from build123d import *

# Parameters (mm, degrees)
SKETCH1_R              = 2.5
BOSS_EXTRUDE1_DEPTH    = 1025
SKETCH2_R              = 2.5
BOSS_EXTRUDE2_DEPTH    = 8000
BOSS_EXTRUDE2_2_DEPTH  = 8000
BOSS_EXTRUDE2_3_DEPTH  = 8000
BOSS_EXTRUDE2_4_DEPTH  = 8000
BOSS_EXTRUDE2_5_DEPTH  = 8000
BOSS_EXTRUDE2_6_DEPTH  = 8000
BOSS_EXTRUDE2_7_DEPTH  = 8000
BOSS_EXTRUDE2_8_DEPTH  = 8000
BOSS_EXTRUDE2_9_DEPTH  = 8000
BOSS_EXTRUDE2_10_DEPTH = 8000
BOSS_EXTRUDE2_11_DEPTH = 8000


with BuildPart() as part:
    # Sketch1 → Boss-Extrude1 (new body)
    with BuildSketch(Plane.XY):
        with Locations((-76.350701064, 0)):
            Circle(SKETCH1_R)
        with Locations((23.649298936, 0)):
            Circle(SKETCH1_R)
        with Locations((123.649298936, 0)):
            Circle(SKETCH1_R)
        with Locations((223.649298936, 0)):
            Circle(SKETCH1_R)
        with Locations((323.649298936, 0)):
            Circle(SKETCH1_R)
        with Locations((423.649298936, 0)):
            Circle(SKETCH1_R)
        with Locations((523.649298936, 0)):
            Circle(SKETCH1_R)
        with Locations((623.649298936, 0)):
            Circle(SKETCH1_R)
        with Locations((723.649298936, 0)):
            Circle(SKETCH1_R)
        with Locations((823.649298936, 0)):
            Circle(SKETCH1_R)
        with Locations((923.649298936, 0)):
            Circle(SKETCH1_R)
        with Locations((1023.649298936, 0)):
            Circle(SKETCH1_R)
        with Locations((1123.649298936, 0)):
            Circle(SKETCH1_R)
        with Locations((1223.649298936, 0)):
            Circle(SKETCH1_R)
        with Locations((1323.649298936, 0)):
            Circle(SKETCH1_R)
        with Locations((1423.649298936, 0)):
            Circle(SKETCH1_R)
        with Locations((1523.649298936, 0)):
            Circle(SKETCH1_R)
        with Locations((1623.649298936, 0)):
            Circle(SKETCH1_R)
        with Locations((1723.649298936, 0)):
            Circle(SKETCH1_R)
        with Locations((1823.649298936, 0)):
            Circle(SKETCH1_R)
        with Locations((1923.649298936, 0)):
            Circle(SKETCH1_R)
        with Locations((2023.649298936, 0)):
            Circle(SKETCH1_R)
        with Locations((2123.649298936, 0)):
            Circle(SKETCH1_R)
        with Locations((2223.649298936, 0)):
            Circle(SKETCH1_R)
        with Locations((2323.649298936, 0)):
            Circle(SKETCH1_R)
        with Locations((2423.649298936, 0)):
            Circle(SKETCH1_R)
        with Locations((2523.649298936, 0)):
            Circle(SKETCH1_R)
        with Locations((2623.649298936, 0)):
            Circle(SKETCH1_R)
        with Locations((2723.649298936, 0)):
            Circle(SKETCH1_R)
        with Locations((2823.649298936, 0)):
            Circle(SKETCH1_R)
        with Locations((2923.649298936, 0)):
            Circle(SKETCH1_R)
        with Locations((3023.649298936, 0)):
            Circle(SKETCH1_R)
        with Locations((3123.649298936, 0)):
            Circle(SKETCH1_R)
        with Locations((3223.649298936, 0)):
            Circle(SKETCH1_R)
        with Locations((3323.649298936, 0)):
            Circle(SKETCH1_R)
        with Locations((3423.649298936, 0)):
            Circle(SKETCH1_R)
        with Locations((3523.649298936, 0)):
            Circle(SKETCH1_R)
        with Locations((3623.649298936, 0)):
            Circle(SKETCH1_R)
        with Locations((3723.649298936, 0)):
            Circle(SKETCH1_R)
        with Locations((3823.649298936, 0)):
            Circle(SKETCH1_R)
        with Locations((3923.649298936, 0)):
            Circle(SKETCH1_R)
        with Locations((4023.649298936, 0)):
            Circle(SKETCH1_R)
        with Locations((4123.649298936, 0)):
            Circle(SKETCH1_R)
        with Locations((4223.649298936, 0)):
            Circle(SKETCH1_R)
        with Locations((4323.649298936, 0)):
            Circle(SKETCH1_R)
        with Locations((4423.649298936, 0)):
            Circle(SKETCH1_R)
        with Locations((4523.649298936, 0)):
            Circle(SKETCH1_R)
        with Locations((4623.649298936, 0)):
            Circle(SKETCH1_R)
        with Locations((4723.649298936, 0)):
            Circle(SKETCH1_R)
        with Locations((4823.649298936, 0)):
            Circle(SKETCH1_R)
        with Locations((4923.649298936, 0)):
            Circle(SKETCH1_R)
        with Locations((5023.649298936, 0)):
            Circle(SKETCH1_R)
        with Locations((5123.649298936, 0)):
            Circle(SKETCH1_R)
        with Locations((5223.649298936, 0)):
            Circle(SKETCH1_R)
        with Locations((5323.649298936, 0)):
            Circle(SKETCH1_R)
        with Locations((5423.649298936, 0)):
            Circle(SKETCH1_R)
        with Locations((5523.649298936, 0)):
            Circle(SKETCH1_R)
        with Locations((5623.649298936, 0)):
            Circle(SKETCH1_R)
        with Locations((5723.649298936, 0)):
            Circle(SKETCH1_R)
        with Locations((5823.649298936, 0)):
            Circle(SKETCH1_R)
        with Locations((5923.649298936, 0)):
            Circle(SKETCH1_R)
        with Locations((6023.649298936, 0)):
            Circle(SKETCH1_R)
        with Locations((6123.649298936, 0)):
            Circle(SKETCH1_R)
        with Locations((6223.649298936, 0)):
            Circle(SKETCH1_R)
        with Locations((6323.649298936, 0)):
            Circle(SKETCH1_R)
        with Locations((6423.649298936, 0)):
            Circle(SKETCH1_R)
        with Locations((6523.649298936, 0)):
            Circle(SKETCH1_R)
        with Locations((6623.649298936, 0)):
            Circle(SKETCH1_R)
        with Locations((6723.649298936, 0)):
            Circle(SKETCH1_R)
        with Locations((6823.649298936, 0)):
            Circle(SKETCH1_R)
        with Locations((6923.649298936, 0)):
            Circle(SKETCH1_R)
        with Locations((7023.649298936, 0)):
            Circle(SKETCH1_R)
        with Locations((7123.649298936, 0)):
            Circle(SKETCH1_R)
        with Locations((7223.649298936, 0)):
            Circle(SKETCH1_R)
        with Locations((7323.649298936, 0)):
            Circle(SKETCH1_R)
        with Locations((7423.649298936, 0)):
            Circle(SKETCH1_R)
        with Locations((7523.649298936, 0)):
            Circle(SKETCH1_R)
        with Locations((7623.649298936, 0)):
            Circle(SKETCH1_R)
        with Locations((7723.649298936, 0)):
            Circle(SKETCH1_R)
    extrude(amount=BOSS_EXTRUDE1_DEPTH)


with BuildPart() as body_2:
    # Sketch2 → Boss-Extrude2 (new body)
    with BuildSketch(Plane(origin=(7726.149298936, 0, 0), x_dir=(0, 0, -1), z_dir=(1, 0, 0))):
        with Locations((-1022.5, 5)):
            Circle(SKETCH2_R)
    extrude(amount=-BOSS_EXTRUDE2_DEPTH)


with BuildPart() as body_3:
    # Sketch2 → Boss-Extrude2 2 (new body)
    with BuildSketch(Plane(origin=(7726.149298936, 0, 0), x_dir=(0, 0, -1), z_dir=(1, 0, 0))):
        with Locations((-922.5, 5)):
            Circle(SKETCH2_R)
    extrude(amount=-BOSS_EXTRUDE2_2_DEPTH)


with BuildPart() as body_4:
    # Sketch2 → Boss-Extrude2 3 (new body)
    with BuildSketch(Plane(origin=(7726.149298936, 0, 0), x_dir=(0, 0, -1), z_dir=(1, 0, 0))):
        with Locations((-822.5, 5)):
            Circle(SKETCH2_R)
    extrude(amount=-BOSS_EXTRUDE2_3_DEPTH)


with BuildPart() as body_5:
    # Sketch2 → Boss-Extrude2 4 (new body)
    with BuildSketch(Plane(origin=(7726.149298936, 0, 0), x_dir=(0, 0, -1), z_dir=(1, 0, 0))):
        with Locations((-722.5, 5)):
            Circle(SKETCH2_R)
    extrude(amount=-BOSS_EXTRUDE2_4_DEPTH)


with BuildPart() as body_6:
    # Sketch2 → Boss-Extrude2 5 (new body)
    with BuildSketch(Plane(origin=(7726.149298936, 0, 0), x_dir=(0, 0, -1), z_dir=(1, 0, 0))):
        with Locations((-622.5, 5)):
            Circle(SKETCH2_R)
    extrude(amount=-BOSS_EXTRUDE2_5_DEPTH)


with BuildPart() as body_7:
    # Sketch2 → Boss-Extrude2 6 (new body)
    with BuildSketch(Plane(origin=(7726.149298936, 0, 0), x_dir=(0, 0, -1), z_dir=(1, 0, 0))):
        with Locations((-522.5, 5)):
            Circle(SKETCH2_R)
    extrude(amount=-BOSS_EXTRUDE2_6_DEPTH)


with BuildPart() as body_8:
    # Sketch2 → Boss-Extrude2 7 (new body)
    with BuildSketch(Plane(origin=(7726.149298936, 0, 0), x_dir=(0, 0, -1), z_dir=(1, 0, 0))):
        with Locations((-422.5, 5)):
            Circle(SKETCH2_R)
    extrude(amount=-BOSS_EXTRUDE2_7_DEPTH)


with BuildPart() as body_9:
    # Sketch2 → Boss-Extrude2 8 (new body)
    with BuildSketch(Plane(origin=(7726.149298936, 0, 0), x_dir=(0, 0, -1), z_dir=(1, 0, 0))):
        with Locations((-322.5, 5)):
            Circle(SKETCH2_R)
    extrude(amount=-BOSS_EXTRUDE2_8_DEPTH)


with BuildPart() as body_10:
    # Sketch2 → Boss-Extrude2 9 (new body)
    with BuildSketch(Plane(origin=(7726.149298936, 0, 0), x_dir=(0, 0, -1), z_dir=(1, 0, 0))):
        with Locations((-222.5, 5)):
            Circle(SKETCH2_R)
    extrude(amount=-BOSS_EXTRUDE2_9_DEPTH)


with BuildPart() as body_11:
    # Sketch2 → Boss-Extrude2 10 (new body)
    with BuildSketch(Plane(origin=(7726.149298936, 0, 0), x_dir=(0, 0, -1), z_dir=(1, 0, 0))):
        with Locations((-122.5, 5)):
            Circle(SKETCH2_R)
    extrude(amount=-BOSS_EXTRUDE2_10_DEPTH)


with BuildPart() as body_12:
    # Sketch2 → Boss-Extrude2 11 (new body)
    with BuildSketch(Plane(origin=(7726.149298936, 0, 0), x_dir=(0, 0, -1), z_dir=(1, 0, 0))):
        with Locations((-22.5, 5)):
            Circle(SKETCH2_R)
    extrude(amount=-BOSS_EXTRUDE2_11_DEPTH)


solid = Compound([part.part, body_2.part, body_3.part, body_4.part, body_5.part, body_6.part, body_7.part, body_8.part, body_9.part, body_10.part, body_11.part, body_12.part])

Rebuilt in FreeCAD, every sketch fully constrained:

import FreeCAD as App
import Part
import Sketcher

V = App.Vector

doc = App.newDocument("Part")
body = doc.addObject("PartDesign::Body", "Body")
body.AllowCompound = True

# Sketch on XY plane
sketch1 = doc.addObject("Sketcher::SketchObject", "Sketch")
body.addObject(sketch1)
sketch1.AttachmentSupport = (doc.XY_Plane, [""])
sketch1.MapMode = "FlatFace"
sketch1.addGeometry([
    Part.Circle(V(-76.350701, 0, 0), V(0, 0, 1), 2.5),  # 0
    Part.Circle(V(23.649299, 0, 0), V(0, 0, 1), 2.5),  # 1
    Part.Circle(V(123.649299, 0, 0), V(0, 0, 1), 2.5),  # 2
    Part.Circle(V(223.649299, 0, 0), V(0, 0, 1), 2.5),  # 3
    Part.Circle(V(323.649299, 0, 0), V(0, 0, 1), 2.5),  # 4
    Part.Circle(V(423.649299, 0, 0), V(0, 0, 1), 2.5),  # 5
    Part.Circle(V(523.649299, 0, 0), V(0, 0, 1), 2.5),  # 6
    Part.Circle(V(623.649299, 0, 0), V(0, 0, 1), 2.5),  # 7
    Part.Circle(V(723.649299, 0, 0), V(0, 0, 1), 2.5),  # 8
    Part.Circle(V(823.649299, 0, 0), V(0, 0, 1), 2.5),  # 9
    Part.Circle(V(923.649299, 0, 0), V(0, 0, 1), 2.5),  # 10
    Part.Circle(V(1023.649299, 0, 0), V(0, 0, 1), 2.5),  # 11
    Part.Circle(V(1123.649299, 0, 0), V(0, 0, 1), 2.5),  # 12
    Part.Circle(V(1223.649299, 0, 0), V(0, 0, 1), 2.5),  # 13
    Part.Circle(V(1323.649299, 0, 0), V(0, 0, 1), 2.5),  # 14
    Part.Circle(V(1423.649299, 0, 0), V(0, 0, 1), 2.5),  # 15
    Part.Circle(V(1523.649299, 0, 0), V(0, 0, 1), 2.5),  # 16
    Part.Circle(V(1623.649299, 0, 0), V(0, 0, 1), 2.5),  # 17
    Part.Circle(V(1723.649299, 0, 0), V(0, 0, 1), 2.5),  # 18
    Part.Circle(V(1823.649299, 0, 0), V(0, 0, 1), 2.5),  # 19
    Part.Circle(V(1923.649299, 0, 0), V(0, 0, 1), 2.5),  # 20
    Part.Circle(V(2023.649299, 0, 0), V(0, 0, 1), 2.5),  # 21
    Part.Circle(V(2123.649299, 0, 0), V(0, 0, 1), 2.5),  # 22
    Part.Circle(V(2223.649299, 0, 0), V(0, 0, 1), 2.5),  # 23
    Part.Circle(V(2323.649299, 0, 0), V(0, 0, 1), 2.5),  # 24
    Part.Circle(V(2423.649299, 0, 0), V(0, 0, 1), 2.5),  # 25
    Part.Circle(V(2523.649299, 0, 0), V(0, 0, 1), 2.5),  # 26
    Part.Circle(V(2623.649299, 0, 0), V(0, 0, 1), 2.5),  # 27
    Part.Circle(V(2723.649299, 0, 0), V(0, 0, 1), 2.5),  # 28
    Part.Circle(V(2823.649299, 0, 0), V(0, 0, 1), 2.5),  # 29
    Part.Circle(V(2923.649299, 0, 0), V(0, 0, 1), 2.5),  # 30
    Part.Circle(V(3023.649299, 0, 0), V(0, 0, 1), 2.5),  # 31
    Part.Circle(V(3123.649299, 0, 0), V(0, 0, 1), 2.5),  # 32
    Part.Circle(V(3223.649299, 0, 0), V(0, 0, 1), 2.5),  # 33
    Part.Circle(V(3323.649299, 0, 0), V(0, 0, 1), 2.5),  # 34
    Part.Circle(V(3423.649299, 0, 0), V(0, 0, 1), 2.5),  # 35
    Part.Circle(V(3523.649299, 0, 0), V(0, 0, 1), 2.5),  # 36
    Part.Circle(V(3623.649299, 0, 0), V(0, 0, 1), 2.5),  # 37
    Part.Circle(V(3723.649299, 0, 0), V(0, 0, 1), 2.5),  # 38
    Part.Circle(V(3823.649299, 0, 0), V(0, 0, 1), 2.5),  # 39
    Part.Circle(V(3923.649299, 0, 0), V(0, 0, 1), 2.5),  # 40
    Part.Circle(V(4023.649299, 0, 0), V(0, 0, 1), 2.5),  # 41
    Part.Circle(V(4123.649299, 0, 0), V(0, 0, 1), 2.5),  # 42
    Part.Circle(V(4223.649299, 0, 0), V(0, 0, 1), 2.5),  # 43
    Part.Circle(V(4323.649299, 0, 0), V(0, 0, 1), 2.5),  # 44
    Part.Circle(V(4423.649299, 0, 0), V(0, 0, 1), 2.5),  # 45
    Part.Circle(V(4523.649299, 0, 0), V(0, 0, 1), 2.5),  # 46
    Part.Circle(V(4623.649299, 0, 0), V(0, 0, 1), 2.5),  # 47
    Part.Circle(V(4723.649299, 0, 0), V(0, 0, 1), 2.5),  # 48
    Part.Circle(V(4823.649299, 0, 0), V(0, 0, 1), 2.5),  # 49
    Part.Circle(V(4923.649299, 0, 0), V(0, 0, 1), 2.5),  # 50
    Part.Circle(V(5023.649299, 0, 0), V(0, 0, 1), 2.5),  # 51
    Part.Circle(V(5123.649299, 0, 0), V(0, 0, 1), 2.5),  # 52
    Part.Circle(V(5223.649299, 0, 0), V(0, 0, 1), 2.5),  # 53
    Part.Circle(V(5323.649299, 0, 0), V(0, 0, 1), 2.5),  # 54
    Part.Circle(V(5423.649299, 0, 0), V(0, 0, 1), 2.5),  # 55
    Part.Circle(V(5523.649299, 0, 0), V(0, 0, 1), 2.5),  # 56
    Part.Circle(V(5623.649299, 0, 0), V(0, 0, 1), 2.5),  # 57
    Part.Circle(V(5723.649299, 0, 0), V(0, 0, 1), 2.5),  # 58
    Part.Circle(V(5823.649299, 0, 0), V(0, 0, 1), 2.5),  # 59
    Part.Circle(V(5923.649299, 0, 0), V(0, 0, 1), 2.5),  # 60
    Part.Circle(V(6023.649299, 0, 0), V(0, 0, 1), 2.5),  # 61
    Part.Circle(V(6123.649299, 0, 0), V(0, 0, 1), 2.5),  # 62
    Part.Circle(V(6223.649299, 0, 0), V(0, 0, 1), 2.5),  # 63
    Part.Circle(V(6323.649299, 0, 0), V(0, 0, 1), 2.5),  # 64
    Part.Circle(V(6423.649299, 0, 0), V(0, 0, 1), 2.5),  # 65
    Part.Circle(V(6523.649299, 0, 0), V(0, 0, 1), 2.5),  # 66
    Part.Circle(V(6623.649299, 0, 0), V(0, 0, 1), 2.5),  # 67
    Part.Circle(V(6723.649299, 0, 0), V(0, 0, 1), 2.5),  # 68
    Part.Circle(V(6823.649299, 0, 0), V(0, 0, 1), 2.5),  # 69
    Part.Circle(V(6923.649299, 0, 0), V(0, 0, 1), 2.5),  # 70
    Part.Circle(V(7023.649299, 0, 0), V(0, 0, 1), 2.5),  # 71
    Part.Circle(V(7123.649299, 0, 0), V(0, 0, 1), 2.5),  # 72
    Part.Circle(V(7223.649299, 0, 0), V(0, 0, 1), 2.5),  # 73
    Part.Circle(V(7323.649299, 0, 0), V(0, 0, 1), 2.5),  # 74
    Part.Circle(V(7423.649299, 0, 0), V(0, 0, 1), 2.5),  # 75
    Part.Circle(V(7523.649299, 0, 0), V(0, 0, 1), 2.5),  # 76
    Part.Circle(V(7623.649299, 0, 0), V(0, 0, 1), 2.5),  # 77
    Part.Circle(V(7723.649299, 0, 0), V(0, 0, 1), 2.5),  # 78
], False)
sketch1.addConstraint([
    Sketcher.Constraint("Equal", 0, 1),
    Sketcher.Constraint("Equal", 1, 2),
    Sketcher.Constraint("Equal", 2, 3),
    Sketcher.Constraint("Equal", 3, 4),
    Sketcher.Constraint("Equal", 4, 5),
    Sketcher.Constraint("Equal", 5, 6),
    Sketcher.Constraint("Equal", 6, 7),
    Sketcher.Constraint("Equal", 7, 8),
    Sketcher.Constraint("Equal", 8, 9),
    Sketcher.Constraint("Equal", 9, 10),
    Sketcher.Constraint("Equal", 10, 11),
    Sketcher.Constraint("Equal", 11, 12),
    Sketcher.Constraint("Equal", 12, 13),
    Sketcher.Constraint("Equal", 13, 14),
    Sketcher.Constraint("Equal", 14, 15),
    Sketcher.Constraint("Equal", 15, 16),
    Sketcher.Constraint("Equal", 16, 17),
    Sketcher.Constraint("Equal", 17, 18),
    Sketcher.Constraint("Equal", 18, 19),
    Sketcher.Constraint("Equal", 19, 20),
    Sketcher.Constraint("Equal", 20, 21),
    Sketcher.Constraint("Equal", 21, 22),
    Sketcher.Constraint("Equal", 22, 23),
    Sketcher.Constraint("Equal", 23, 24),
    Sketcher.Constraint("Equal", 24, 25),
    Sketcher.Constraint("Equal", 25, 26),
    Sketcher.Constraint("Equal", 26, 27),
    Sketcher.Constraint("Equal", 27, 28),
    Sketcher.Constraint("Equal", 28, 29),
    Sketcher.Constraint("Equal", 29, 30),
    Sketcher.Constraint("Equal", 30, 31),
    Sketcher.Constraint("Equal", 31, 32),
    Sketcher.Constraint("Equal", 32, 33),
    Sketcher.Constraint("Equal", 33, 34),
    Sketcher.Constraint("Equal", 34, 35),
    Sketcher.Constraint("Equal", 35, 36),
    Sketcher.Constraint("Equal", 36, 37),
    Sketcher.Constraint("Equal", 37, 38),
    Sketcher.Constraint("Equal", 38, 39),
    Sketcher.Constraint("Equal", 39, 40),
    Sketcher.Constraint("Equal", 40, 41),
    Sketcher.Constraint("Equal", 41, 42),
    Sketcher.Constraint("Equal", 42, 43),
    Sketcher.Constraint("Equal", 43, 44),
    Sketcher.Constraint("Equal", 44, 45),
    Sketcher.Constraint("Equal", 45, 46),
    Sketcher.Constraint("Equal", 46, 47),
    Sketcher.Constraint("Equal", 47, 48),
    Sketcher.Constraint("Equal", 48, 49),
    Sketcher.Constraint("Equal", 49, 50),
    Sketcher.Constraint("Equal", 50, 51),
    Sketcher.Constraint("Equal", 51, 52),
    Sketcher.Constraint("Equal", 52, 53),
    Sketcher.Constraint("Equal", 53, 54),
    Sketcher.Constraint("Equal", 54, 55),
    Sketcher.Constraint("Equal", 55, 56),
    Sketcher.Constraint("Equal", 56, 57),
    Sketcher.Constraint("Equal", 57, 58),
    Sketcher.Constraint("Equal", 58, 59),
    Sketcher.Constraint("Equal", 59, 60),
    Sketcher.Constraint("Equal", 60, 61),
    Sketcher.Constraint("Equal", 61, 62),
    Sketcher.Constraint("Equal", 62, 63),
    Sketcher.Constraint("Equal", 63, 64),
    Sketcher.Constraint("Equal", 64, 65),
    Sketcher.Constraint("Equal", 65, 66),
    Sketcher.Constraint("Equal", 66, 67),
    Sketcher.Constraint("Equal", 67, 68),
    Sketcher.Constraint("Equal", 68, 69),
    Sketcher.Constraint("Equal", 69, 70),
    Sketcher.Constraint("Equal", 70, 71),
    Sketcher.Constraint("Equal", 71, 72),
    Sketcher.Constraint("Equal", 72, 73),
    Sketcher.Constraint("Equal", 73, 74),
    Sketcher.Constraint("Equal", 74, 75),
    Sketcher.Constraint("Equal", 75, 76),
    Sketcher.Constraint("Equal", 76, 77),
    Sketcher.Constraint("Equal", 77, 78),
    Sketcher.Constraint("PointOnObject", 0, 3, -1),
    Sketcher.Constraint("PointOnObject", 1, 3, -1),
    Sketcher.Constraint("PointOnObject", 2, 3, -1),
    Sketcher.Constraint("PointOnObject", 3, 3, -1),
    Sketcher.Constraint("PointOnObject", 4, 3, -1),
    Sketcher.Constraint("PointOnObject", 5, 3, -1),
    Sketcher.Constraint("PointOnObject", 6, 3, -1),
    Sketcher.Constraint("PointOnObject", 7, 3, -1),
    Sketcher.Constraint("PointOnObject", 8, 3, -1),
    Sketcher.Constraint("PointOnObject", 9, 3, -1),
    Sketcher.Constraint("PointOnObject", 10, 3, -1),
    Sketcher.Constraint("PointOnObject", 11, 3, -1),
    Sketcher.Constraint("PointOnObject", 12, 3, -1),
    Sketcher.Constraint("PointOnObject", 13, 3, -1),
    Sketcher.Constraint("PointOnObject", 14, 3, -1),
    Sketcher.Constraint("PointOnObject", 15, 3, -1),
    Sketcher.Constraint("PointOnObject", 16, 3, -1),
    Sketcher.Constraint("PointOnObject", 17, 3, -1),
    Sketcher.Constraint("PointOnObject", 18, 3, -1),
    Sketcher.Constraint("PointOnObject", 19, 3, -1),
    Sketcher.Constraint("PointOnObject", 20, 3, -1),
    Sketcher.Constraint("PointOnObject", 21, 3, -1),
    Sketcher.Constraint("PointOnObject", 22, 3, -1),
    Sketcher.Constraint("PointOnObject", 23, 3, -1),
    Sketcher.Constraint("PointOnObject", 24, 3, -1),
    Sketcher.Constraint("PointOnObject", 25, 3, -1),
    Sketcher.Constraint("PointOnObject", 26, 3, -1),
    Sketcher.Constraint("PointOnObject", 27, 3, -1),
    Sketcher.Constraint("PointOnObject", 28, 3, -1),
    Sketcher.Constraint("PointOnObject", 29, 3, -1),
    Sketcher.Constraint("PointOnObject", 30, 3, -1),
    Sketcher.Constraint("PointOnObject", 31, 3, -1),
    Sketcher.Constraint("PointOnObject", 32, 3, -1),
    Sketcher.Constraint("PointOnObject", 33, 3, -1),
    Sketcher.Constraint("PointOnObject", 34, 3, -1),
    Sketcher.Constraint("PointOnObject", 35, 3, -1),
    Sketcher.Constraint("PointOnObject", 36, 3, -1),
    Sketcher.Constraint("PointOnObject", 37, 3, -1),
    Sketcher.Constraint("PointOnObject", 38, 3, -1),
    Sketcher.Constraint("PointOnObject", 39, 3, -1),
    Sketcher.Constraint("PointOnObject", 40, 3, -1),
    Sketcher.Constraint("PointOnObject", 41, 3, -1),
    Sketcher.Constraint("PointOnObject", 42, 3, -1),
    Sketcher.Constraint("PointOnObject", 43, 3, -1),
    Sketcher.Constraint("PointOnObject", 44, 3, -1),
    Sketcher.Constraint("PointOnObject", 45, 3, -1),
    Sketcher.Constraint("PointOnObject", 46, 3, -1),
    Sketcher.Constraint("PointOnObject", 47, 3, -1),
    Sketcher.Constraint("PointOnObject", 48, 3, -1),
    Sketcher.Constraint("PointOnObject", 49, 3, -1),
    Sketcher.Constraint("PointOnObject", 50, 3, -1),
    Sketcher.Constraint("PointOnObject", 51, 3, -1),
    Sketcher.Constraint("PointOnObject", 52, 3, -1),
    Sketcher.Constraint("PointOnObject", 53, 3, -1),
    Sketcher.Constraint("PointOnObject", 54, 3, -1),
    Sketcher.Constraint("PointOnObject", 55, 3, -1),
    Sketcher.Constraint("PointOnObject", 56, 3, -1),
    Sketcher.Constraint("PointOnObject", 57, 3, -1),
    Sketcher.Constraint("PointOnObject", 58, 3, -1),
    Sketcher.Constraint("PointOnObject", 59, 3, -1),
    Sketcher.Constraint("PointOnObject", 60, 3, -1),
    Sketcher.Constraint("PointOnObject", 61, 3, -1),
    Sketcher.Constraint("PointOnObject", 62, 3, -1),
    Sketcher.Constraint("PointOnObject", 63, 3, -1),
    Sketcher.Constraint("PointOnObject", 64, 3, -1),
    Sketcher.Constraint("PointOnObject", 65, 3, -1),
    Sketcher.Constraint("PointOnObject", 66, 3, -1),
    Sketcher.Constraint("PointOnObject", 67, 3, -1),
    Sketcher.Constraint("PointOnObject", 68, 3, -1),
    Sketcher.Constraint("PointOnObject", 69, 3, -1),
    Sketcher.Constraint("PointOnObject", 70, 3, -1),
    Sketcher.Constraint("PointOnObject", 71, 3, -1),
    Sketcher.Constraint("PointOnObject", 72, 3, -1),
    Sketcher.Constraint("PointOnObject", 73, 3, -1),
    Sketcher.Constraint("PointOnObject", 74, 3, -1),
    Sketcher.Constraint("PointOnObject", 75, 3, -1),
    Sketcher.Constraint("PointOnObject", 76, 3, -1),
    Sketcher.Constraint("PointOnObject", 77, 3, -1),
    Sketcher.Constraint("PointOnObject", 78, 3, -1),
    Sketcher.Constraint("Diameter", 0, 5.0),
    Sketcher.Constraint("DistanceX", 0, 3, -1, 1, 76.350701),
    Sketcher.Constraint("DistanceX", -1, 1, 1, 3, 23.649299),
    Sketcher.Constraint("DistanceX", -1, 1, 2, 3, 123.649299),
    Sketcher.Constraint("DistanceX", -1, 1, 3, 3, 223.649299),
    Sketcher.Constraint("DistanceX", -1, 1, 4, 3, 323.649299),
    Sketcher.Constraint("DistanceX", -1, 1, 5, 3, 423.649299),
    Sketcher.Constraint("DistanceX", -1, 1, 6, 3, 523.649299),
    Sketcher.Constraint("DistanceX", -1, 1, 7, 3, 623.649299),
    Sketcher.Constraint("DistanceX", -1, 1, 8, 3, 723.649299),
    Sketcher.Constraint("DistanceX", -1, 1, 9, 3, 823.649299),
    Sketcher.Constraint("DistanceX", -1, 1, 10, 3, 923.649299),
    Sketcher.Constraint("DistanceX", -1, 1, 11, 3, 1023.649299),
    Sketcher.Constraint("DistanceX", -1, 1, 12, 3, 1123.649299),
    Sketcher.Constraint("DistanceX", -1, 1, 13, 3, 1223.649299),
    Sketcher.Constraint("DistanceX", -1, 1, 14, 3, 1323.649299),
    Sketcher.Constraint("DistanceX", -1, 1, 15, 3, 1423.649299),
    Sketcher.Constraint("DistanceX", -1, 1, 16, 3, 1523.649299),
    Sketcher.Constraint("DistanceX", -1, 1, 17, 3, 1623.649299),
    Sketcher.Constraint("DistanceX", -1, 1, 18, 3, 1723.649299),
    Sketcher.Constraint("DistanceX", -1, 1, 19, 3, 1823.649299),
    Sketcher.Constraint("DistanceX", -1, 1, 20, 3, 1923.649299),
    Sketcher.Constraint("DistanceX", -1, 1, 21, 3, 2023.649299),
    Sketcher.Constraint("DistanceX", -1, 1, 22, 3, 2123.649299),
    Sketcher.Constraint("DistanceX", -1, 1, 23, 3, 2223.649299),
    Sketcher.Constraint("DistanceX", -1, 1, 24, 3, 2323.649299),
    Sketcher.Constraint("DistanceX", -1, 1, 25, 3, 2423.649299),
    Sketcher.Constraint("DistanceX", -1, 1, 26, 3, 2523.649299),
    Sketcher.Constraint("DistanceX", -1, 1, 27, 3, 2623.649299),
    Sketcher.Constraint("DistanceX", -1, 1, 28, 3, 2723.649299),
    Sketcher.Constraint("DistanceX", -1, 1, 29, 3, 2823.649299),
    Sketcher.Constraint("DistanceX", -1, 1, 30, 3, 2923.649299),
    Sketcher.Constraint("DistanceX", -1, 1, 31, 3, 3023.649299),
    Sketcher.Constraint("DistanceX", -1, 1, 32, 3, 3123.649299),
    Sketcher.Constraint("DistanceX", -1, 1, 33, 3, 3223.649299),
    Sketcher.Constraint("DistanceX", -1, 1, 34, 3, 3323.649299),
    Sketcher.Constraint("DistanceX", -1, 1, 35, 3, 3423.649299),
    Sketcher.Constraint("DistanceX", -1, 1, 36, 3, 3523.649299),
    Sketcher.Constraint("DistanceX", -1, 1, 37, 3, 3623.649299),
    Sketcher.Constraint("DistanceX", -1, 1, 38, 3, 3723.649299),
    Sketcher.Constraint("DistanceX", -1, 1, 39, 3, 3823.649299),
    Sketcher.Constraint("DistanceX", -1, 1, 40, 3, 3923.649299),
    Sketcher.Constraint("DistanceX", -1, 1, 41, 3, 4023.649299),
    Sketcher.Constraint("DistanceX", -1, 1, 42, 3, 4123.649299),
    Sketcher.Constraint("DistanceX", -1, 1, 43, 3, 4223.649299),
    Sketcher.Constraint("DistanceX", -1, 1, 44, 3, 4323.649299),
    Sketcher.Constraint("DistanceX", -1, 1, 45, 3, 4423.649299),
    Sketcher.Constraint("DistanceX", -1, 1, 46, 3, 4523.649299),
    Sketcher.Constraint("DistanceX", -1, 1, 47, 3, 4623.649299),
    Sketcher.Constraint("DistanceX", -1, 1, 48, 3, 4723.649299),
    Sketcher.Constraint("DistanceX", -1, 1, 49, 3, 4823.649299),
    Sketcher.Constraint("DistanceX", -1, 1, 50, 3, 4923.649299),
    Sketcher.Constraint("DistanceX", -1, 1, 51, 3, 5023.649299),
    Sketcher.Constraint("DistanceX", -1, 1, 52, 3, 5123.649299),
    Sketcher.Constraint("DistanceX", -1, 1, 53, 3, 5223.649299),
    Sketcher.Constraint("DistanceX", -1, 1, 54, 3, 5323.649299),
    Sketcher.Constraint("DistanceX", -1, 1, 55, 3, 5423.649299),
    Sketcher.Constraint("DistanceX", -1, 1, 56, 3, 5523.649299),
    Sketcher.Constraint("DistanceX", -1, 1, 57, 3, 5623.649299),
    Sketcher.Constraint("DistanceX", -1, 1, 58, 3, 5723.649299),
    Sketcher.Constraint("DistanceX", -1, 1, 59, 3, 5823.649299),
    Sketcher.Constraint("DistanceX", -1, 1, 60, 3, 5923.649299),
    Sketcher.Constraint("DistanceX", -1, 1, 61, 3, 6023.649299),
    Sketcher.Constraint("DistanceX", -1, 1, 62, 3, 6123.649299),
    Sketcher.Constraint("DistanceX", -1, 1, 63, 3, 6223.649299),
    Sketcher.Constraint("DistanceX", -1, 1, 64, 3, 6323.649299),
    Sketcher.Constraint("DistanceX", -1, 1, 65, 3, 6423.649299),
    Sketcher.Constraint("DistanceX", -1, 1, 66, 3, 6523.649299),
    Sketcher.Constraint("DistanceX", -1, 1, 67, 3, 6623.649299),
    Sketcher.Constraint("DistanceX", -1, 1, 68, 3, 6723.649299),
    Sketcher.Constraint("DistanceX", -1, 1, 69, 3, 6823.649299),
    Sketcher.Constraint("DistanceX", -1, 1, 70, 3, 6923.649299),
    Sketcher.Constraint("DistanceX", -1, 1, 71, 3, 7023.649299),
    Sketcher.Constraint("DistanceX", -1, 1, 72, 3, 7123.649299),
    Sketcher.Constraint("DistanceX", -1, 1, 73, 3, 7223.649299),
    Sketcher.Constraint("DistanceX", -1, 1, 74, 3, 7323.649299),
    Sketcher.Constraint("DistanceX", -1, 1, 75, 3, 7423.649299),
    Sketcher.Constraint("DistanceX", -1, 1, 76, 3, 7523.649299),
    Sketcher.Constraint("DistanceX", -1, 1, 77, 3, 7623.649299),
    Sketcher.Constraint("DistanceX", -1, 1, 78, 3, 7723.649299),
])
pad1 = doc.addObject("PartDesign::Pad", "Pad")
body.addObject(pad1)
pad1.Profile = sketch1
pad1.Length = 1025
body2 = doc.addObject("PartDesign::Body", "Body001")

# Sketch on YZ plane
sketch2 = doc.addObject("Sketcher::SketchObject", "Sketch001")
body2.addObject(sketch2)
sketch2.AttachmentSupport = (doc.getObject("YZ_Plane001"), [""])
sketch2.MapMode = "FlatFace"
sketch2.AttachmentOffset = App.Placement(V(0, 0, 7726.149299), App.Rotation())
sketch2.addGeometry(Part.Circle(V(5, 1022.5, 0), V(0, 0, 1), 2.5), False)
sketch2.addConstraint([
    Sketcher.Constraint("Diameter", 0, 5.0),
    Sketcher.Constraint("DistanceX", -1, 1, 0, 3, 5.0),
    Sketcher.Constraint("DistanceY", -1, 1, 0, 3, 1022.5),
])
pad2 = doc.addObject("PartDesign::Pad", "Pad001")
body2.addObject(pad2)
pad2.Profile = sketch2
pad2.Length = 8000
pad2.Reversed = True
body3 = doc.addObject("PartDesign::Body", "Body002")

# Sketch on YZ plane
sketch3 = doc.addObject("Sketcher::SketchObject", "Sketch002")
body3.addObject(sketch3)
sketch3.AttachmentSupport = (doc.getObject("YZ_Plane002"), [""])
sketch3.MapMode = "FlatFace"
sketch3.AttachmentOffset = App.Placement(V(0, 0, 7726.149299), App.Rotation())
sketch3.addGeometry(Part.Circle(V(5, 922.5, 0), V(0, 0, 1), 2.5), False)
sketch3.addConstraint([
    Sketcher.Constraint("Diameter", 0, 5.0),
    Sketcher.Constraint("DistanceX", -1, 1, 0, 3, 5.0),
    Sketcher.Constraint("DistanceY", -1, 1, 0, 3, 922.5),
])
pad3 = doc.addObject("PartDesign::Pad", "Pad002")
body3.addObject(pad3)
pad3.Profile = sketch3
pad3.Length = 8000
pad3.Reversed = True
body4 = doc.addObject("PartDesign::Body", "Body003")

# Sketch on YZ plane
sketch4 = doc.addObject("Sketcher::SketchObject", "Sketch003")
body4.addObject(sketch4)
sketch4.AttachmentSupport = (doc.getObject("YZ_Plane003"), [""])
sketch4.MapMode = "FlatFace"
sketch4.AttachmentOffset = App.Placement(V(0, 0, 7726.149299), App.Rotation())
sketch4.addGeometry(Part.Circle(V(5, 822.5, 0), V(0, 0, 1), 2.5), False)
sketch4.addConstraint([
    Sketcher.Constraint("Diameter", 0, 5.0),
    Sketcher.Constraint("DistanceX", -1, 1, 0, 3, 5.0),
    Sketcher.Constraint("DistanceY", -1, 1, 0, 3, 822.5),
])
pad4 = doc.addObject("PartDesign::Pad", "Pad003")
body4.addObject(pad4)
pad4.Profile = sketch4
pad4.Length = 8000
pad4.Reversed = True
body5 = doc.addObject("PartDesign::Body", "Body004")

# Sketch on YZ plane
sketch5 = doc.addObject("Sketcher::SketchObject", "Sketch004")
body5.addObject(sketch5)
sketch5.AttachmentSupport = (doc.getObject("YZ_Plane004"), [""])
sketch5.MapMode = "FlatFace"
sketch5.AttachmentOffset = App.Placement(V(0, 0, 7726.149299), App.Rotation())
sketch5.addGeometry(Part.Circle(V(5, 722.5, 0), V(0, 0, 1), 2.5), False)
sketch5.addConstraint([
    Sketcher.Constraint("Diameter", 0, 5.0),
    Sketcher.Constraint("DistanceX", -1, 1, 0, 3, 5.0),
    Sketcher.Constraint("DistanceY", -1, 1, 0, 3, 722.5),
])
pad5 = doc.addObject("PartDesign::Pad", "Pad004")
body5.addObject(pad5)
pad5.Profile = sketch5
pad5.Length = 8000
pad5.Reversed = True
body6 = doc.addObject("PartDesign::Body", "Body005")

# Sketch on YZ plane
sketch6 = doc.addObject("Sketcher::SketchObject", "Sketch005")
body6.addObject(sketch6)
sketch6.AttachmentSupport = (doc.getObject("YZ_Plane005"), [""])
sketch6.MapMode = "FlatFace"
sketch6.AttachmentOffset = App.Placement(V(0, 0, 7726.149299), App.Rotation())
sketch6.addGeometry(Part.Circle(V(5, 622.5, 0), V(0, 0, 1), 2.5), False)
sketch6.addConstraint([
    Sketcher.Constraint("Diameter", 0, 5.0),
    Sketcher.Constraint("DistanceX", -1, 1, 0, 3, 5.0),
    Sketcher.Constraint("DistanceY", -1, 1, 0, 3, 622.5),
])
pad6 = doc.addObject("PartDesign::Pad", "Pad005")
body6.addObject(pad6)
pad6.Profile = sketch6
pad6.Length = 8000
pad6.Reversed = True
body7 = doc.addObject("PartDesign::Body", "Body006")

# Sketch on YZ plane
sketch7 = doc.addObject("Sketcher::SketchObject", "Sketch006")
body7.addObject(sketch7)
sketch7.AttachmentSupport = (doc.getObject("YZ_Plane006"), [""])
sketch7.MapMode = "FlatFace"
sketch7.AttachmentOffset = App.Placement(V(0, 0, 7726.149299), App.Rotation())
sketch7.addGeometry(Part.Circle(V(5, 522.5, 0), V(0, 0, 1), 2.5), False)
sketch7.addConstraint([
    Sketcher.Constraint("Diameter", 0, 5.0),
    Sketcher.Constraint("DistanceX", -1, 1, 0, 3, 5.0),
    Sketcher.Constraint("DistanceY", -1, 1, 0, 3, 522.5),
])
pad7 = doc.addObject("PartDesign::Pad", "Pad006")
body7.addObject(pad7)
pad7.Profile = sketch7
pad7.Length = 8000
pad7.Reversed = True
body8 = doc.addObject("PartDesign::Body", "Body007")

# Sketch on YZ plane
sketch8 = doc.addObject("Sketcher::SketchObject", "Sketch007")
body8.addObject(sketch8)
sketch8.AttachmentSupport = (doc.getObject("YZ_Plane007"), [""])
sketch8.MapMode = "FlatFace"
sketch8.AttachmentOffset = App.Placement(V(0, 0, 7726.149299), App.Rotation())
sketch8.addGeometry(Part.Circle(V(5, 422.5, 0), V(0, 0, 1), 2.5), False)
sketch8.addConstraint([
    Sketcher.Constraint("Diameter", 0, 5.0),
    Sketcher.Constraint("DistanceX", -1, 1, 0, 3, 5.0),
    Sketcher.Constraint("DistanceY", -1, 1, 0, 3, 422.5),
])
pad8 = doc.addObject("PartDesign::Pad", "Pad007")
body8.addObject(pad8)
pad8.Profile = sketch8
pad8.Length = 8000
pad8.Reversed = True
body9 = doc.addObject("PartDesign::Body", "Body008")

# Sketch on YZ plane
sketch9 = doc.addObject("Sketcher::SketchObject", "Sketch008")
body9.addObject(sketch9)
sketch9.AttachmentSupport = (doc.getObject("YZ_Plane008"), [""])
sketch9.MapMode = "FlatFace"
sketch9.AttachmentOffset = App.Placement(V(0, 0, 7726.149299), App.Rotation())
sketch9.addGeometry(Part.Circle(V(5, 322.5, 0), V(0, 0, 1), 2.5), False)
sketch9.addConstraint([
    Sketcher.Constraint("Diameter", 0, 5.0),
    Sketcher.Constraint("DistanceX", -1, 1, 0, 3, 5.0),
    Sketcher.Constraint("DistanceY", -1, 1, 0, 3, 322.5),
])
pad9 = doc.addObject("PartDesign::Pad", "Pad008")
body9.addObject(pad9)
pad9.Profile = sketch9
pad9.Length = 8000
pad9.Reversed = True
body10 = doc.addObject("PartDesign::Body", "Body009")

# Sketch on YZ plane
sketch10 = doc.addObject("Sketcher::SketchObject", "Sketch009")
body10.addObject(sketch10)
sketch10.AttachmentSupport = (doc.getObject("YZ_Plane009"), [""])
sketch10.MapMode = "FlatFace"
sketch10.AttachmentOffset = App.Placement(V(0, 0, 7726.149299), App.Rotation())
sketch10.addGeometry(Part.Circle(V(5, 222.5, 0), V(0, 0, 1), 2.5), False)
sketch10.addConstraint([
    Sketcher.Constraint("Diameter", 0, 5.0),
    Sketcher.Constraint("DistanceX", -1, 1, 0, 3, 5.0),
    Sketcher.Constraint("DistanceY", -1, 1, 0, 3, 222.5),
])
pad10 = doc.addObject("PartDesign::Pad", "Pad009")
body10.addObject(pad10)
pad10.Profile = sketch10
pad10.Length = 8000
pad10.Reversed = True
body11 = doc.addObject("PartDesign::Body", "Body010")

# Sketch on YZ plane
sketch11 = doc.addObject("Sketcher::SketchObject", "Sketch010")
body11.addObject(sketch11)
sketch11.AttachmentSupport = (doc.getObject("YZ_Plane010"), [""])
sketch11.MapMode = "FlatFace"
sketch11.AttachmentOffset = App.Placement(V(0, 0, 7726.149299), App.Rotation())
sketch11.addGeometry(Part.Circle(V(5, 122.5, 0), V(0, 0, 1), 2.5), False)
sketch11.addConstraint([
    Sketcher.Constraint("Diameter", 0, 5.0),
    Sketcher.Constraint("DistanceX", -1, 1, 0, 3, 5.0),
    Sketcher.Constraint("DistanceY", -1, 1, 0, 3, 122.5),
])
pad11 = doc.addObject("PartDesign::Pad", "Pad010")
body11.addObject(pad11)
pad11.Profile = sketch11
pad11.Length = 8000
pad11.Reversed = True
body12 = doc.addObject("PartDesign::Body", "Body011")

# Sketch on YZ plane
sketch12 = doc.addObject("Sketcher::SketchObject", "Sketch011")
body12.addObject(sketch12)
sketch12.AttachmentSupport = (doc.getObject("YZ_Plane011"), [""])
sketch12.MapMode = "FlatFace"
sketch12.AttachmentOffset = App.Placement(V(0, 0, 7726.149299), App.Rotation())
sketch12.addGeometry(Part.Circle(V(5, 22.5, 0), V(0, 0, 1), 2.5), False)
sketch12.addConstraint([
    Sketcher.Constraint("Diameter", 0, 5.0),
    Sketcher.Constraint("DistanceX", -1, 1, 0, 3, 5.0),
    Sketcher.Constraint("DistanceY", -1, 1, 0, 3, 22.5),
])
pad12 = doc.addObject("PartDesign::Pad", "Pad011")
body12.addObject(pad12)
pad12.Profile = sketch12
pad12.Length = 8000
pad12.Reversed = True

doc.recompute()
